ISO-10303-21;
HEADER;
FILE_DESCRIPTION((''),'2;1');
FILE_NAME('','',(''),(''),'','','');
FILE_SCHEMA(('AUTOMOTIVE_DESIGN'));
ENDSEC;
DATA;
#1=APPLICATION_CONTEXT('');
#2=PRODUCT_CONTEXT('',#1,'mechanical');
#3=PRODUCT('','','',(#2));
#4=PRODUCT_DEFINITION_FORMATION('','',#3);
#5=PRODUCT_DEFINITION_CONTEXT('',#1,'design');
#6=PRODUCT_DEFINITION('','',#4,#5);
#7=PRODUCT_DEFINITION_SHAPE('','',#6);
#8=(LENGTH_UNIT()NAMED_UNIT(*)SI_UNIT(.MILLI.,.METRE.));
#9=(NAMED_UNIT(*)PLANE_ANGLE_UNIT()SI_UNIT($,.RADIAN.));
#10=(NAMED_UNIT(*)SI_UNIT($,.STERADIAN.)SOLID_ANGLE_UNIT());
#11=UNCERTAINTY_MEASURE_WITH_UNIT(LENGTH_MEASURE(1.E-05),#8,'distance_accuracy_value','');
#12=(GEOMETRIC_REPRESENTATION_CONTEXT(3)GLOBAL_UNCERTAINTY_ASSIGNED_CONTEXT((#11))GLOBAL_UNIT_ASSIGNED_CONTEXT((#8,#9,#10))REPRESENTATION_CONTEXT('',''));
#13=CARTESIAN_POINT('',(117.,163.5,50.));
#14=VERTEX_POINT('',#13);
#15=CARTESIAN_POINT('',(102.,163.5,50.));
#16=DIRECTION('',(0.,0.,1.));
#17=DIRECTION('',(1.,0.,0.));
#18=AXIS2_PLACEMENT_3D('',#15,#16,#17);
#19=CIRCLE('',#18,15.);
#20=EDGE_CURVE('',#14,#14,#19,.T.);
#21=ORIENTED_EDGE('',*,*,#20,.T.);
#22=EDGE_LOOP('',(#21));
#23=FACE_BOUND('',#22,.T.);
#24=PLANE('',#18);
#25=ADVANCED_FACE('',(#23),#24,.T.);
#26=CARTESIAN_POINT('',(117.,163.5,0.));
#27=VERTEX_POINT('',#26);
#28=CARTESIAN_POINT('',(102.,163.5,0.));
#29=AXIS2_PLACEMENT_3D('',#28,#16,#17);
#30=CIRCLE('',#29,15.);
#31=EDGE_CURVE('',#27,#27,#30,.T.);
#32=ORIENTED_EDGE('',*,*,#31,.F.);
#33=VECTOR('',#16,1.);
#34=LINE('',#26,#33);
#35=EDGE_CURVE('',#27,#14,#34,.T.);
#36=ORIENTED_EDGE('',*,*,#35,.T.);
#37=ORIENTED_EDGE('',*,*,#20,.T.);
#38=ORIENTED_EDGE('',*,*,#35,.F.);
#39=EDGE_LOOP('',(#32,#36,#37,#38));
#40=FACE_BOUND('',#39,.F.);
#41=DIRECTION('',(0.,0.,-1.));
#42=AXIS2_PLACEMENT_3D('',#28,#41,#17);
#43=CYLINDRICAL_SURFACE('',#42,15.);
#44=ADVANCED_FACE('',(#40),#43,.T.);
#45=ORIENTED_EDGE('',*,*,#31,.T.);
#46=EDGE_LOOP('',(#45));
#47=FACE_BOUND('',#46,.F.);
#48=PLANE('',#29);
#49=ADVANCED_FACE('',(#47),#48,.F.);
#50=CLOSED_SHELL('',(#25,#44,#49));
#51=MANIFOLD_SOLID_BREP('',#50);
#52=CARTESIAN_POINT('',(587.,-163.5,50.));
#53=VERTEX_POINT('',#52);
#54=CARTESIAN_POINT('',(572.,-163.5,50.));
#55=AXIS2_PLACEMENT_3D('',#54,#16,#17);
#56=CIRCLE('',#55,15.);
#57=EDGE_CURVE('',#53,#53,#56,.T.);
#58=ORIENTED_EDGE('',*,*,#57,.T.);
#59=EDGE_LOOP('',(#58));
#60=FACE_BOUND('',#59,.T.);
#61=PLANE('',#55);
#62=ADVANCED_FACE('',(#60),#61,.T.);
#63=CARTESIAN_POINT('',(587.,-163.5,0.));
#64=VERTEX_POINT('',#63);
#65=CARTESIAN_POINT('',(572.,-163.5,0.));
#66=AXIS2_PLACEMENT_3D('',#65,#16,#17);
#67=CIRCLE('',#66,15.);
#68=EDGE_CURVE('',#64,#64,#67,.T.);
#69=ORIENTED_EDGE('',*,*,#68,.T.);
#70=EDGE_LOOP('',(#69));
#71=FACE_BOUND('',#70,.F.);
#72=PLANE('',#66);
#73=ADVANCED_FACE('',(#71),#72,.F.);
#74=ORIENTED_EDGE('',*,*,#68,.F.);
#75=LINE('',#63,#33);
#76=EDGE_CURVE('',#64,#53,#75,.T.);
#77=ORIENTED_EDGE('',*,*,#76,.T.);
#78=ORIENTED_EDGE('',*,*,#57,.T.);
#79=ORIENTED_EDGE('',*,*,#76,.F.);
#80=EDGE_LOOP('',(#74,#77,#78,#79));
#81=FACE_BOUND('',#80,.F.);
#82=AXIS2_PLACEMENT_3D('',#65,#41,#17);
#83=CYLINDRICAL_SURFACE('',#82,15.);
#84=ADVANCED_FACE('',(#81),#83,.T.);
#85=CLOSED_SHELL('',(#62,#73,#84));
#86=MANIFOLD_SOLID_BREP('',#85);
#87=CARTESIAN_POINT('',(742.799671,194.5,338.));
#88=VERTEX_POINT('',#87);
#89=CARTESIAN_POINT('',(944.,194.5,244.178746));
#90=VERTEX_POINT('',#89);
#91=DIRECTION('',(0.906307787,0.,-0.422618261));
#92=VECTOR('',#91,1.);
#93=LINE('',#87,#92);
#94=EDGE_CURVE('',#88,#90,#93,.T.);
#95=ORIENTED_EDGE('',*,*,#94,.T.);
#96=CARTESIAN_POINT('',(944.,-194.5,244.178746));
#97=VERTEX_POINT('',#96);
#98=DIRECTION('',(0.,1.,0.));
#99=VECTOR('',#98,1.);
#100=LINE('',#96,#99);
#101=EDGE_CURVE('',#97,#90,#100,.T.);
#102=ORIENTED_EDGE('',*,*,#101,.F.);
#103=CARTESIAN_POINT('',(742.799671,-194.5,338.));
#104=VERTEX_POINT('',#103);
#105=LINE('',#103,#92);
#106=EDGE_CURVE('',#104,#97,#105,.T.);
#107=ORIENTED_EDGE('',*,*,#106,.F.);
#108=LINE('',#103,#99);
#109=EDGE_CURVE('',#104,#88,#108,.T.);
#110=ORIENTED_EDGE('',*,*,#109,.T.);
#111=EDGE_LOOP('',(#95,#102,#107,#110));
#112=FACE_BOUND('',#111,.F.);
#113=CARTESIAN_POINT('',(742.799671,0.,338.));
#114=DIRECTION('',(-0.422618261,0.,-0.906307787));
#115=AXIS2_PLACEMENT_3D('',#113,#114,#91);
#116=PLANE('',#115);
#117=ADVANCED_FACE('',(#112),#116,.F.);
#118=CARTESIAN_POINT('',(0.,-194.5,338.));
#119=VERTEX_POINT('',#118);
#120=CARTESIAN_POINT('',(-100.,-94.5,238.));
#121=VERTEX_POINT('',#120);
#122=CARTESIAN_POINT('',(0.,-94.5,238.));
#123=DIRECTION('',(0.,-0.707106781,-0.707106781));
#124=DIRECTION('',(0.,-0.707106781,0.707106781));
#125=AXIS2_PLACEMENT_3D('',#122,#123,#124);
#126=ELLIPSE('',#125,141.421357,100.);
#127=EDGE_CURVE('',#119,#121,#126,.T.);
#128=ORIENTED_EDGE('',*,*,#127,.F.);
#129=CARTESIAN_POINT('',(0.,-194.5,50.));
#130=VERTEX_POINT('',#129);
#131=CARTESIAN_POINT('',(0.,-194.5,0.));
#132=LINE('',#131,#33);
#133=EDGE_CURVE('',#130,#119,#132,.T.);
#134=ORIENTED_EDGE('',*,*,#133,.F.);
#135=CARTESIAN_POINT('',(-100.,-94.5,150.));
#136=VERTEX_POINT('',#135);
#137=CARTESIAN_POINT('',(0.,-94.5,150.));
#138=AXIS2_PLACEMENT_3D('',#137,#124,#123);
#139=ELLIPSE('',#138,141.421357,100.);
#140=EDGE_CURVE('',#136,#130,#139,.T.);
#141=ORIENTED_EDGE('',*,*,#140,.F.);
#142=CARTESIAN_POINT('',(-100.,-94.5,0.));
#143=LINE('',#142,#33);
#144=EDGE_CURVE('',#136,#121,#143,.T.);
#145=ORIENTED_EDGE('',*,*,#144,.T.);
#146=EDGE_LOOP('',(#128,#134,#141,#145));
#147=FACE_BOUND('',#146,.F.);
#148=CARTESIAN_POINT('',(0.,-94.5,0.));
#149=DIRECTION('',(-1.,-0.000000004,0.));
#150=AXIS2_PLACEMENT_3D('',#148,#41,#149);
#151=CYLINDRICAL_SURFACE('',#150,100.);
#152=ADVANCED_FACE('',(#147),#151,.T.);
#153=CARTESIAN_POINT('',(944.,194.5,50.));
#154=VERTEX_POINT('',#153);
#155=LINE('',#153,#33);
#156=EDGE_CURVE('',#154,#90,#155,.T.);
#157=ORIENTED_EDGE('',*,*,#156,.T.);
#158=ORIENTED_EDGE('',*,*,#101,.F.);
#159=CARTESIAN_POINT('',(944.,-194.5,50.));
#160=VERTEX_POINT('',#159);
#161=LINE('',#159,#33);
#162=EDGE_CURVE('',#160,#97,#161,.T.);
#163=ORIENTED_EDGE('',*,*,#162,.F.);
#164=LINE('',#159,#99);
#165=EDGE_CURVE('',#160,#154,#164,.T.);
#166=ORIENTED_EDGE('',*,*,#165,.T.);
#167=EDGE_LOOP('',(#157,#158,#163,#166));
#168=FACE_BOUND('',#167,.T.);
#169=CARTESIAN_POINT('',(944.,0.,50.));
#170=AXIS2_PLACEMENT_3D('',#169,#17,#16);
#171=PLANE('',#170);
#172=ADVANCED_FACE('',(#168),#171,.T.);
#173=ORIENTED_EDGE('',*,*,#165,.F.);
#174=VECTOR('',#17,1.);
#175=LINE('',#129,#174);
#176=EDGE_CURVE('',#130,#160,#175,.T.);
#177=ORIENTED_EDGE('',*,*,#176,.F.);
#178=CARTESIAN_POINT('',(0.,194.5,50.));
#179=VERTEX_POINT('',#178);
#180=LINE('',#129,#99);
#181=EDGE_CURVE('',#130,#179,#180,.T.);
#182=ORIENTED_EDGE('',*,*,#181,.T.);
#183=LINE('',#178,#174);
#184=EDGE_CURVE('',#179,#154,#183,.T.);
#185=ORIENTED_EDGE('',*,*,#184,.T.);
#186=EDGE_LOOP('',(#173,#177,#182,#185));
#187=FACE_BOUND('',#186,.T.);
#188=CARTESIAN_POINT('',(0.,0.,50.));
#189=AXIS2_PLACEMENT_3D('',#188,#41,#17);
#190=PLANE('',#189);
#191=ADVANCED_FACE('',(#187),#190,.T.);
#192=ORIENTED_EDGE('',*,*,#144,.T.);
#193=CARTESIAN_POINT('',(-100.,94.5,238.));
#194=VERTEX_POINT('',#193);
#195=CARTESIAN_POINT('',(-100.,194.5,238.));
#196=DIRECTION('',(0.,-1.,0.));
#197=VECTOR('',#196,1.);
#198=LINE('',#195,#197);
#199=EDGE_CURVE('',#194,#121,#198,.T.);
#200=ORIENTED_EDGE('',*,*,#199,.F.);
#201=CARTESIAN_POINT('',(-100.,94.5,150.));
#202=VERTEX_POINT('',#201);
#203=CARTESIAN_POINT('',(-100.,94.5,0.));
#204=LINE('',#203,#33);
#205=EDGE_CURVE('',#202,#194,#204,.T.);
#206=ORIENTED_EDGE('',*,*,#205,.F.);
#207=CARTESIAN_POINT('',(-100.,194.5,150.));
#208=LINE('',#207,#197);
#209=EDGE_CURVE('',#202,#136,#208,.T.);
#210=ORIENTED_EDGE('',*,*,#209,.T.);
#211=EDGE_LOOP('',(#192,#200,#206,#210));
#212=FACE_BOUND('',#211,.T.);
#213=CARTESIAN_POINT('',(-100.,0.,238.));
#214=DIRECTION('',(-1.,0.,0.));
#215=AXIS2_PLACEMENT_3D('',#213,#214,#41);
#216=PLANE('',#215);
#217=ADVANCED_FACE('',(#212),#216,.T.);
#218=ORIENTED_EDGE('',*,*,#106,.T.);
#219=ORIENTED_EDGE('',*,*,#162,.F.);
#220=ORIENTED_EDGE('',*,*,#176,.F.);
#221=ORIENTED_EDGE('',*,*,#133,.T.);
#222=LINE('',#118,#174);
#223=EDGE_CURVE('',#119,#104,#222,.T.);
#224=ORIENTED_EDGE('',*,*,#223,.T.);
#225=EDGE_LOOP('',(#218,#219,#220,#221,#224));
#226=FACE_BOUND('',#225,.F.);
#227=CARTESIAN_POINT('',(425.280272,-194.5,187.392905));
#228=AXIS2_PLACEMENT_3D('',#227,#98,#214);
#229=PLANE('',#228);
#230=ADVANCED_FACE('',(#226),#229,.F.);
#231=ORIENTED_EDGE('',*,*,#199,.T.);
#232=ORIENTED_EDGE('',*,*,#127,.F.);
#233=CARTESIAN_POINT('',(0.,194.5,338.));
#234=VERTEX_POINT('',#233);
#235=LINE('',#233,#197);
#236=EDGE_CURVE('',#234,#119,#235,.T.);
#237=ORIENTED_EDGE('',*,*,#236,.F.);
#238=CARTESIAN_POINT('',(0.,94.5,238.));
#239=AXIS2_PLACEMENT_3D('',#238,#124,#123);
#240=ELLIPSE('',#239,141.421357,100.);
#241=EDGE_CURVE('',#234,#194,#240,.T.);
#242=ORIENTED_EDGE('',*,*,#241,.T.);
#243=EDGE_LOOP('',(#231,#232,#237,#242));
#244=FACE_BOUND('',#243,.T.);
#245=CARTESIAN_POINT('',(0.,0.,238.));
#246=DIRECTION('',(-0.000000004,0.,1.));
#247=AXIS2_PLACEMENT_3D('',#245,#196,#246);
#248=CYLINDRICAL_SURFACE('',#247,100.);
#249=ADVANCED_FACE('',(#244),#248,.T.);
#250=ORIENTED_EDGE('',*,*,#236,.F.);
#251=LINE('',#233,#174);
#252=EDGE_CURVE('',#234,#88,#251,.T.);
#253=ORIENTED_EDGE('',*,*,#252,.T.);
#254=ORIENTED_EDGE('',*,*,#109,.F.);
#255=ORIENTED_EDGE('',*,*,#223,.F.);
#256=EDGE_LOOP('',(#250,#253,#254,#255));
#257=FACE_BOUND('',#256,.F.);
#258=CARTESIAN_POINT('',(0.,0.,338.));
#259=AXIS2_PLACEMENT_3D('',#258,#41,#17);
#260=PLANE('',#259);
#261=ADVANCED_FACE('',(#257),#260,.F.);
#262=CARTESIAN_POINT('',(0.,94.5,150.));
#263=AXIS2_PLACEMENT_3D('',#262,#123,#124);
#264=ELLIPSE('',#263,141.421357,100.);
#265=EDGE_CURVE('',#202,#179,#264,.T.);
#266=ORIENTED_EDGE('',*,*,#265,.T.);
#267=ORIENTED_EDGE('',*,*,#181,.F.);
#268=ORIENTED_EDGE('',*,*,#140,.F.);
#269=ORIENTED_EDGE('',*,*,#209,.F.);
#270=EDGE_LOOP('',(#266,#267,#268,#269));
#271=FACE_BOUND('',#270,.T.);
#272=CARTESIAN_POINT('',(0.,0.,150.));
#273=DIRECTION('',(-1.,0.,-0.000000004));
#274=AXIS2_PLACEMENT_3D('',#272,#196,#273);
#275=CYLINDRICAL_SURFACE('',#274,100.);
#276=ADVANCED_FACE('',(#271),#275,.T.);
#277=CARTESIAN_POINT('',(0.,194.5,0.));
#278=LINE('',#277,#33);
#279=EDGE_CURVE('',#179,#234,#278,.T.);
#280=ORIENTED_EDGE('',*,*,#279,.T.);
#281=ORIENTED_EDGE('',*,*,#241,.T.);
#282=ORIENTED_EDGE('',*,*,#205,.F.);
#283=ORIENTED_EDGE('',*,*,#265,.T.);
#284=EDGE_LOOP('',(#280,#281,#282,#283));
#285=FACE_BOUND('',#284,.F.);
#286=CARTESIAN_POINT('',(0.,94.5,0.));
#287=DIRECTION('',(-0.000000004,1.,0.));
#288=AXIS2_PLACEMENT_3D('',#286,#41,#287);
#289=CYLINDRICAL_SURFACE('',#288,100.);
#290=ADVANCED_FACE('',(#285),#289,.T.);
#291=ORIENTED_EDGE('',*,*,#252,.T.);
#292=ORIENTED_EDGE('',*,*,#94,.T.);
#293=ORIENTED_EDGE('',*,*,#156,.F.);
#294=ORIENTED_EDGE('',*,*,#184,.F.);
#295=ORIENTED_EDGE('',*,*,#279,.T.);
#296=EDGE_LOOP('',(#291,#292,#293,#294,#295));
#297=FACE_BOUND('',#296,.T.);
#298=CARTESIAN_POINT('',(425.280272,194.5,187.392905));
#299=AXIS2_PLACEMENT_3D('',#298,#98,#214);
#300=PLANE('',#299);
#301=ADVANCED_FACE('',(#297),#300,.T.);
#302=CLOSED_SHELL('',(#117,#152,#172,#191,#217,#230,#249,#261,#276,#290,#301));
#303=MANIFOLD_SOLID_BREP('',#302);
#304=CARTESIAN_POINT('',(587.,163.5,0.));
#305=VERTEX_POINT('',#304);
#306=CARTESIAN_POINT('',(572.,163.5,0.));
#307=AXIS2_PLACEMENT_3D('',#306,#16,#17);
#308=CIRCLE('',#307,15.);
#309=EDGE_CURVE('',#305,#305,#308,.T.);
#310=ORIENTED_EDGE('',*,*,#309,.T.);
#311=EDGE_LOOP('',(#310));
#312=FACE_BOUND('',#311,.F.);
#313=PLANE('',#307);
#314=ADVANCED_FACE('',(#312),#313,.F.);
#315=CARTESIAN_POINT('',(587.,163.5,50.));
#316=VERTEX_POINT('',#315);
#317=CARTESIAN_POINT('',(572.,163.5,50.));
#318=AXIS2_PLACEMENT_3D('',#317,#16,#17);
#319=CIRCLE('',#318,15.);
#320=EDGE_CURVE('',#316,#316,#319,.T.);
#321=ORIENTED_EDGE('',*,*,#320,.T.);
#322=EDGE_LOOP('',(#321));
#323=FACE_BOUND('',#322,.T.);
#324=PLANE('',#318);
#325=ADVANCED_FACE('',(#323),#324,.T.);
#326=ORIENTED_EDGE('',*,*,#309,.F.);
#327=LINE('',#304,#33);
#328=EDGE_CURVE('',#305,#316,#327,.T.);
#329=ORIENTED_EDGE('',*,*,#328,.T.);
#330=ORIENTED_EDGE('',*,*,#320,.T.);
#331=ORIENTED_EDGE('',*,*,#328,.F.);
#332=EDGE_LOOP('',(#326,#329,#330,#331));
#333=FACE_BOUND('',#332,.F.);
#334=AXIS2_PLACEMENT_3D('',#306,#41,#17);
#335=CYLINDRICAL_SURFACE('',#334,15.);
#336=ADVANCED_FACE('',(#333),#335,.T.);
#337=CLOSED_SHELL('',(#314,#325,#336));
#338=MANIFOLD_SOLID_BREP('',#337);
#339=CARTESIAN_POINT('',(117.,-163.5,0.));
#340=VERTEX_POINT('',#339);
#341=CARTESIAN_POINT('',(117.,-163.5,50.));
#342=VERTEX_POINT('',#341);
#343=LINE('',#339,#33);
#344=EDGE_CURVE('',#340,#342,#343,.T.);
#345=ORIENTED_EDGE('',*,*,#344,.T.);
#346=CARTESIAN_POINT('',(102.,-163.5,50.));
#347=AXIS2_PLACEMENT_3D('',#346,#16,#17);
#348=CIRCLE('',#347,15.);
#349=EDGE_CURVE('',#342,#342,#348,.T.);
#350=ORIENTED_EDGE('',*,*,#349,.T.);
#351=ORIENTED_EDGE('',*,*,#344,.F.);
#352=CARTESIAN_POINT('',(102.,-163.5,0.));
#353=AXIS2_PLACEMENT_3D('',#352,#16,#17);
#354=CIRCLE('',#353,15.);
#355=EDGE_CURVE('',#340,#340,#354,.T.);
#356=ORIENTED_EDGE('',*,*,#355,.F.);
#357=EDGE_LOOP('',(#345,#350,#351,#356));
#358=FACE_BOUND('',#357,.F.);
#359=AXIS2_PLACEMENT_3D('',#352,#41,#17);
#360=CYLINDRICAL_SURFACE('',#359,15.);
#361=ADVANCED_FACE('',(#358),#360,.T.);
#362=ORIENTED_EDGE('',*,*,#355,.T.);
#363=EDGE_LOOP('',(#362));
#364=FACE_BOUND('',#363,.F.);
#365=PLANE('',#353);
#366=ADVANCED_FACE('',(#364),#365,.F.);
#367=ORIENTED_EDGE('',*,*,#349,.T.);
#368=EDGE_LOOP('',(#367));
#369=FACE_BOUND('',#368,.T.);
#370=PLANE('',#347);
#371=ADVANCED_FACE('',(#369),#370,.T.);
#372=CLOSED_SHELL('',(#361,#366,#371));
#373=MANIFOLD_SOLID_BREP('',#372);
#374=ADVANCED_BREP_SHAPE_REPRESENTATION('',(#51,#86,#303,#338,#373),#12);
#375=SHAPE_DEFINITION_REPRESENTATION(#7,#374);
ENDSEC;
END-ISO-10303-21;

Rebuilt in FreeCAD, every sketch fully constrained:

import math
import FreeCAD as App
import Part
import Sketcher

V = App.Vector
Q = App.Units.Quantity

doc = App.newDocument("Part")
body = doc.addObject("PartDesign::Body", "Body")

sketch1 = doc.addObject("Sketcher::SketchObject", "Sketch")
body.addObject(sketch1)
sketch1.AttachmentSupport = (doc.XZ_Plane, [""])
sketch1.MapMode = "FlatFace"
sketch1.addGeometry(Part.LineSegment(V(742.799671, 338, 0), V(0, 338, 0)), False)
sketch1.addGeometry(Part.ArcOfCircle(Part.Circle(V(0, 238, 0), V(0, 0, 1), 100), math.radians(90), math.radians(180)), False)
sketch1.addGeometry(Part.LineSegment(V(-100, 238, 0), V(-100, 150, 0)), False)
sketch1.addGeometry(Part.ArcOfCircle(Part.Circle(V(0, 150, 0), V(0, 0, 1), 100), math.radians(-180), math.radians(-90)), False)
sketch1.addGeometry(Part.LineSegment(V(0, 50, 0), V(944, 50, 0)), False)
sketch1.addGeometry(Part.LineSegment(V(944, 50, 0), V(944, 244.178746, 0)), False)
sketch1.addGeometry(Part.LineSegment(V(944, 244.178746, 0), V(742.799671, 338, 0)), False)
sketch1.addConstraint(Sketcher.Constraint("Tangent", 0, 2, 1, 1))
sketch1.addConstraint(Sketcher.Constraint("Tangent", 1, 2, 2, 1))
sketch1.addConstraint(Sketcher.Constraint("Tangent", 2, 2, 3, 1))
sketch1.addConstraint(Sketcher.Constraint("Tangent", 3, 2, 4, 1))
sketch1.addConstraint(Sketcher.Constraint("Coincident", 4, 2, 5, 1))
sketch1.addConstraint(Sketcher.Constraint("Coincident", 5, 2, 6, 1))
sketch1.addConstraint(Sketcher.Constraint("Coincident", 6, 2, 0, 1))
sketch1.addConstraint(Sketcher.Constraint("Horizontal", 0))
sketch1.addConstraint(Sketcher.Constraint("Vertical", 2))
sketch1.addConstraint(Sketcher.Constraint("Horizontal", 4))
sketch1.addConstraint(Sketcher.Constraint("Vertical", 5))
sketch1.addConstraint(Sketcher.Constraint("Equal", 1, 3))
sketch1.addConstraint(Sketcher.Constraint("PointOnObject", 1, 3, -2))
sketch1.addConstraint(Sketcher.Constraint("Radius", 1, 100.0))
sketch1.addConstraint(Sketcher.Constraint("DistanceX", 4, 1, 4, 2, 944.0))
sketch1.addConstraint(Sketcher.Constraint("DistanceY", 2, 2, 2, 1, 88.0))
sketch1.addConstraint(Sketcher.Constraint("Angle", 6, Q("155 deg")))
sketch1.addConstraint(Sketcher.Constraint("Distance", 6, 222.0))
sketch1.addConstraint(Sketcher.Constraint("DistanceY", -1, 1, 1, 3, 238.0))
pad1 = doc.addObject("PartDesign::Pad", "Pad")
body.addObject(pad1)
pad1.Profile = sketch1
pad1.Length = 389
pad1.Midplane = True

sketch2 = doc.addObject("Sketcher::SketchObject", "Sketch001")
body.addObject(sketch2)
sketch2.AttachmentSupport = (doc.XY_Plane, [""])
sketch2.MapMode = "FlatFace"
sketch2.addGeometry(Part.ArcOfCircle(Part.Circle(V(0, 94.5, 0), V(0, 0, 1), 100), math.radians(90), math.radians(180)), False)
sketch2.addGeometry(Part.LineSegment(V(0, 194.5, 0), V(0, 244.5, 0)), False)
sketch2.addGeometry(Part.LineSegment(V(0, 244.5, 0), V(-150, 244.5, 0)), False)
sketch2.addGeometry(Part.LineSegment(V(-150, 244.5, 0), V(-150, -244.5, 0)), False)
sketch2.addGeometry(Part.LineSegment(V(-150, -244.5, 0), V(0, -244.5, 0)), False)
sketch2.addGeometry(Part.LineSegment(V(0, -244.5, 0), V(0, -194.5, 0)), False)
sketch2.addGeometry(Part.ArcOfCircle(Part.Circle(V(0, -94.5, 0), V(0, 0, 1), 100), math.radians(-180), math.radians(-90)), False)
sketch2.addGeometry(Part.LineSegment(V(-100, -94.5, 0), V(-100, 94.5, 0)), False)
sketch2.addConstraint(Sketcher.Constraint("Coincident", 0, 1, 1, 1))
sketch2.addConstraint(Sketcher.Constraint("Coincident", 1, 2, 2, 1))
sketch2.addConstraint(Sketcher.Constraint("Coincident", 2, 2, 3, 1))
sketch2.addConstraint(Sketcher.Constraint("Coincident", 3, 2, 4, 1))
sketch2.addConstraint(Sketcher.Constraint("Coincident", 4, 2, 5, 1))
sketch2.addConstraint(Sketcher.Constraint("Coincident", 5, 2, 6, 2))
sketch2.addConstraint(Sketcher.Constraint("Tangent", 6, 1, 7, 1))
sketch2.addConstraint(Sketcher.Constraint("Tangent", 7, 2, 0, 2))
sketch2.addConstraint(Sketcher.Constraint("Vertical", 1))
sketch2.addConstraint(Sketcher.Constraint("Horizontal", 2))
sketch2.addConstraint(Sketcher.Constraint("Vertical", 3))
sketch2.addConstraint(Sketcher.Constraint("Horizontal", 4))
sketch2.addConstraint(Sketcher.Constraint("Vertical", 5))
sketch2.addConstraint(Sketcher.Constraint("Vertical", 7))
sketch2.addConstraint(Sketcher.Constraint("Equal", 0, 6))
sketch2.addConstraint(Sketcher.Constraint("Symmetric", 0, 3, 6, 3, -1, 1))
sketch2.addConstraint(Sketcher.Constraint("Symmetric", 1, 2, 4, 2, -1, 1))
sketch2.addConstraint(Sketcher.Constraint("PointOnObject", 0, 1, -2))
sketch2.addConstraint(Sketcher.Constraint("Radius", 0, 100.0))
sketch2.addConstraint(Sketcher.Constraint("DistanceX", 2, 2, 2, 1, 150.0))
sketch2.addConstraint(Sketcher.Constraint("DistanceY", 1, 1, 1, 2, 50.0))
sketch2.addConstraint(Sketcher.Constraint("DistanceY", 3, 2, 3, 1, 489.0))
pocket1 = doc.addObject("PartDesign::Pocket", "Pocket")
body.addObject(pocket1)
pocket1.Profile = sketch2
pocket1.Type = "ThroughAll"
pocket1.Reversed = True
body2 = doc.addObject("PartDesign::Body", "Body001")

sketch3 = doc.addObject("Sketcher::SketchObject", "Sketch002")
body2.addObject(sketch3)
sketch3.AttachmentSupport = (doc.getObject("XY_Plane001"), [""])
sketch3.MapMode = "FlatFace"
sketch3.addGeometry(Part.Circle(V(102, -163.5, 0), V(0, 0, 1), 15), False)
sketch3.addConstraint(Sketcher.Constraint("Diameter", 0, 30.0))
sketch3.addConstraint(Sketcher.Constraint("DistanceX", -1, 1, 0, 3, 102.0))
sketch3.addConstraint(Sketcher.Constraint("DistanceY", 0, 3, -1, 1, 163.5))
pad2 = doc.addObject("PartDesign::Pad", "Pad001")
body2.addObject(pad2)
pad2.Profile = sketch3
pad2.Length = 50
body3 = doc.addObject("PartDesign::Body", "Body002")

sketch4 = doc.addObject("Sketcher::SketchObject", "Sketch003")
body3.addObject(sketch4)
sketch4.AttachmentSupport = (doc.getObject("XY_Plane002"), [""])
sketch4.MapMode = "FlatFace"
sketch4.addGeometry(Part.Circle(V(102, 163.5, 0), V(0, 0, 1), 15), False)
sketch4.addConstraint(Sketcher.Constraint("Diameter", 0, 30.0))
sketch4.addConstraint(Sketcher.Constraint("DistanceX", -1, 1, 0, 3, 102.0))
sketch4.addConstraint(Sketcher.Constraint("DistanceY", -1, 1, 0, 3, 163.5))
pad3 = doc.addObject("PartDesign::Pad", "Pad002")
body3.addObject(pad3)
pad3.Profile = sketch4
pad3.Length = 50
body4 = doc.addObject("PartDesign::Body", "Body003")

sketch5 = doc.addObject("Sketcher::SketchObject", "Sketch004")
body4.addObject(sketch5)
sketch5.AttachmentSupport = (doc.getObject("XY_Plane003"), [""])
sketch5.MapMode = "FlatFace"
sketch5.addGeometry(Part.Circle(V(572, 163.5, 0), V(0, 0, 1), 15), False)
sketch5.addConstraint(Sketcher.Constraint("Diameter", 0, 30.0))
sketch5.addConstraint(Sketcher.Constraint("DistanceX", -1, 1, 0, 3, 572.0))
sketch5.addConstraint(Sketcher.Constraint("DistanceY", -1, 1, 0, 3, 163.5))
pad4 = doc.addObject("PartDesign::Pad", "Pad003")
body4.addObject(pad4)
pad4.Profile = sketch5
pad4.Length = 50
body5 = doc.addObject("PartDesign::Body", "Body004")

sketch6 = doc.addObject("Sketcher::SketchObject", "Sketch005")
body5.addObject(sketch6)
sketch6.AttachmentSupport = (doc.getObject("XY_Plane004"), [""])
sketch6.MapMode = "FlatFace"
sketch6.addGeometry(Part.Circle(V(572, -163.5, 0), V(0, 0, 1), 15), False)
sketch6.addConstraint(Sketcher.Constraint("Diameter", 0, 30.0))
sketch6.addConstraint(Sketcher.Constraint("DistanceX", -1, 1, 0, 3, 572.0))
sketch6.addConstraint(Sketcher.Constraint("DistanceY", 0, 3, -1, 1, 163.5))
pad5 = doc.addObject("PartDesign::Pad", "Pad004")
body5.addObject(pad5)
pad5.Profile = sketch6
pad5.Length = 50

doc.recompute()
